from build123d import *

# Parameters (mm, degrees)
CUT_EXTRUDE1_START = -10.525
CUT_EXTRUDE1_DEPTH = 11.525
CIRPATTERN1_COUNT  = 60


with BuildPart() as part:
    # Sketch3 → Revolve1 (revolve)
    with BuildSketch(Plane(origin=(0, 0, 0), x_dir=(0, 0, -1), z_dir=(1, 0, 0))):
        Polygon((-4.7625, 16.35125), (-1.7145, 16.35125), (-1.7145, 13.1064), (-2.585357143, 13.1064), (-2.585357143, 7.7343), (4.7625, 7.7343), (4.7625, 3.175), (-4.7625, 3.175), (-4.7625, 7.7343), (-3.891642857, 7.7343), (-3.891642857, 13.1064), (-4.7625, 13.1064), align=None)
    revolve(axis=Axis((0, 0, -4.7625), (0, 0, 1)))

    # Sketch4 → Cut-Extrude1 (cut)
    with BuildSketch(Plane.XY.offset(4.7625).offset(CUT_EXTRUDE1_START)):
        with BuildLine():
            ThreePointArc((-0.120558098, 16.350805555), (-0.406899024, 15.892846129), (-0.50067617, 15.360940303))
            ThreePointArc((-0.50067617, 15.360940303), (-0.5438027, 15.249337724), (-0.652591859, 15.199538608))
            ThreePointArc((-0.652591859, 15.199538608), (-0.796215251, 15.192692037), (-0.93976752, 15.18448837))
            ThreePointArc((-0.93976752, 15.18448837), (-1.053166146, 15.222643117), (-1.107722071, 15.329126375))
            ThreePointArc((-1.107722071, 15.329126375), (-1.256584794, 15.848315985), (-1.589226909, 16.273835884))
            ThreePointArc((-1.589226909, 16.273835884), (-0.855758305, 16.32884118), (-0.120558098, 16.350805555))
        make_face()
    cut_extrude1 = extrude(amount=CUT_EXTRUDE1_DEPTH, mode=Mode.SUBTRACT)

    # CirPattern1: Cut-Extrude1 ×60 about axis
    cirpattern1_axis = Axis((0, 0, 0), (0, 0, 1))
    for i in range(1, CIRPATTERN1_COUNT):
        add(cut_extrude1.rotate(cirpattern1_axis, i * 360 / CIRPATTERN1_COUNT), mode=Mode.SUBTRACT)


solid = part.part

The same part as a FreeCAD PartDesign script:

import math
import FreeCAD as App
import Part
import Sketcher
from FreeCAD import Vector
Q = App.Units.Quantity


def add_polygon(sketch, points):
    """Adds a closed chain of lines whose ends are joined by coincident constraints."""
    first, n = sketch.GeometryCount, len(points)
    for a, b in zip(points, points[1:] + points[:1]):
        sketch.addGeometry(Part.LineSegment(App.Vector(*a, 0), App.Vector(*b, 0)), False)
    for i in range(n):
        sketch.addConstraint(Sketcher.Constraint("Coincident", first + i, 2, first + (i + 1) % n, 1))

doc = App.newDocument("Part")
body = doc.addObject("PartDesign::Body", "Body")

sketch1 = body.newObject("Sketcher::SketchObject", "Sketch")
sketch1.AttachmentSupport = (doc.getObject("YZ_Plane"), [""])
sketch1.MapMode = "FlatFace"
add_polygon(sketch1, [(16.4, 1.7), (16.4, 4.8), (13.1, 4.8), (13.1, 3.9), (7.7, 3.9), (7.7, 4.8), (3.2, 4.8), (3.2, -4.8), (7.7, -4.8), (7.7, 2.6), (13.1, 2.6), (13.1, 1.7)])
sketch1.addConstraint(Sketcher.Constraint("Vertical", 0))
sketch1.addConstraint(Sketcher.Constraint("Horizontal", 1))
sketch1.addConstraint(Sketcher.Constraint("Vertical", 2))
sketch1.addConstraint(Sketcher.Constraint("Horizontal", 3))
sketch1.addConstraint(Sketcher.Constraint("Vertical", 4))
sketch1.addConstraint(Sketcher.Constraint("Horizontal", 5))
sketch1.addConstraint(Sketcher.Constraint("Vertical", 6))
sketch1.addConstraint(Sketcher.Constraint("Horizontal", 7))
sketch1.addConstraint(Sketcher.Constraint("Vertical", 8))
sketch1.addConstraint(Sketcher.Constraint("Horizontal", 9))
sketch1.addConstraint(Sketcher.Constraint("Vertical", 10))
sketch1.addConstraint(Sketcher.Constraint("Horizontal", 11))
sketch1.addConstraint(Sketcher.Constraint("Symmetric", 4, 2, 7, 2, -1))
sketch1.addConstraint(Sketcher.Constraint("Horizontal", 1, 2, 4, 2))
sketch1.addConstraint(Sketcher.Constraint("Vertical", 2, 2, 9, 2))
sketch1.addConstraint(Sketcher.Constraint("Equal", 4, 10))
sketch1.addConstraint(Sketcher.Constraint("DistanceY", 0, 1, 0, 2, Q("0.12 in")))
sketch1.addConstraint(Sketcher.Constraint("DistanceY", 6, 2, 6, 1, Q("0.375 in")))
sketch1.addConstraint(Sketcher.Constraint("DistanceX", 3, 2, 3, 1, Q("0.2115 in")))
sketch1.addConstraint(Sketcher.Constraint("DistanceX", 5, 2, 5, 1, Q("0.1795 in")))
sketch1.addConstraint(Sketcher.Constraint("DistanceX", -1, 1, 1, 2, Q("0.516 in")))
sketch1.addConstraint(Sketcher.Constraint("DistanceX", 1, 2, 1, 1, Q("3.24485 mm")))
sketch1.addConstraint(Sketcher.Constraint("DistanceY", 2, 2, 2, 1, Q("0.870857 mm")))
revolution = body.newObject("PartDesign::Revolution", "Revolution")
revolution.Profile = sketch1
revolution.ReferenceAxis = (sketch1, ["V_Axis"])
revolution.Angle = 360

sketch2 = body.newObject("Sketcher::SketchObject", "Sketch001")
sketch2.AttachmentSupport = (doc.getObject("XY_Plane"), [""])
sketch2.MapMode = "FlatFace"
sketch2.AttachmentOffset = App.Placement(Vector(0, 0, -5.7625), App.Rotation())
sketch2.addGeometry(Part.ArcOfCircle(Part.Circle(Vector(0.91, 15.39, 0), Vector(0, 0, 1), 1.41), math.radians(137), math.radians(181)), False)
sketch2.addGeometry(Part.ArcOfCircle(Part.Circle(Vector(0, 0, 0), Vector(0, 0, 1), 16.35), math.radians(90.42), math.radians(95.58)), False)
sketch2.addGeometry(Part.ArcOfCircle(Part.Circle(Vector(-2.52, 15.21, 0), Vector(0, 0, 1), 1.41), math.radians(5), math.radians(49)), False)
sketch2.addGeometry(Part.ArcOfCircle(Part.Circle(Vector(-0.95, 15.34, 0), Vector(0, 0, 1), 0.16), math.radians(-175), math.radians(-86)), False)
sketch2.addGeometry(Part.ArcOfCircle(Part.Circle(Vector(0, 0, 0), Vector(0, 0, 1), 15.21), math.radians(92.46), math.radians(93.54)), False)
sketch2.addGeometry(Part.ArcOfCircle(Part.Circle(Vector(-0.66, 15.36, 0), Vector(0, 0, 1), 0.16), math.radians(-88), math.radians(1)), False)
sketch2.addConstraint(Sketcher.Constraint("Coincident", 0, 1, 1, 1))
sketch2.addConstraint(Sketcher.Constraint("Coincident", 1, 2, 2, 2))
sketch2.addConstraint(Sketcher.Constraint("Tangent", 2, 1, 3, 1))
sketch2.addConstraint(Sketcher.Constraint("Tangent", 3, 2, 4, 2))
sketch2.addConstraint(Sketcher.Constraint("Tangent", 4, 1, 5, 1))
sketch2.addConstraint(Sketcher.Constraint("Tangent", 5, 2, 0, 2))
sketch2.addConstraint(Sketcher.Constraint("Coincident", 1, 3, -1, 1))
sketch2.addConstraint(Sketcher.Constraint("Equal", 0, 2))
sketch2.addConstraint(Sketcher.Constraint("Equal", 3, 5))
sketch2.addConstraint(Sketcher.Constraint("PointOnObject", 4, 3, -2))
sketch2.addConstraint(Sketcher.Constraint("Radius", 1, Q("16.35125 mm")))
sketch2.addConstraint(Sketcher.Constraint("Radius", 3, Q("0.15875 mm")))
sketch2.addConstraint(Sketcher.Constraint("Radius", 4, Q("15.213529 mm")))
sketch2.addConstraint(Sketcher.Constraint("Radius", 0, Q("1.414227 mm")))
sketch2.addConstraint(Sketcher.Constraint("DistanceX", 5, 3, -1, 1, Q("0.659402 mm")))
sketch2.addConstraint(Sketcher.Constraint("DistanceY", 3, 3, 1, 2, Q("0.930901 mm")))
sketch2.addConstraint(Sketcher.Constraint("DistanceY", 4, 1, 5, 2, Q("0.161402 mm")))
sketch2.addConstraint(Sketcher.Constraint("DistanceX", 2, 3, -1, 1, Q("2.516589 mm")))
sketch2.addConstraint(Sketcher.Constraint("DistanceY", -1, 1, 2, 3, Q("15.20611 mm")))
pocket1 = body.newObject("PartDesign::Pocket", "Pocket")
pocket1.Profile = sketch2
pocket1.Length = 11.525
pocket1.Reversed = True
doc.recompute()

polarpattern = body.newObject("PartDesign::PolarPattern", "PolarPattern")
polarpattern.Originals = [pocket1]
polarpattern.Axis = (doc.getObject("Z_Axis"), [""])
polarpattern.Angle = 360
polarpattern.Occurrences = 60
body.Tip = polarpattern

doc.recompute()
